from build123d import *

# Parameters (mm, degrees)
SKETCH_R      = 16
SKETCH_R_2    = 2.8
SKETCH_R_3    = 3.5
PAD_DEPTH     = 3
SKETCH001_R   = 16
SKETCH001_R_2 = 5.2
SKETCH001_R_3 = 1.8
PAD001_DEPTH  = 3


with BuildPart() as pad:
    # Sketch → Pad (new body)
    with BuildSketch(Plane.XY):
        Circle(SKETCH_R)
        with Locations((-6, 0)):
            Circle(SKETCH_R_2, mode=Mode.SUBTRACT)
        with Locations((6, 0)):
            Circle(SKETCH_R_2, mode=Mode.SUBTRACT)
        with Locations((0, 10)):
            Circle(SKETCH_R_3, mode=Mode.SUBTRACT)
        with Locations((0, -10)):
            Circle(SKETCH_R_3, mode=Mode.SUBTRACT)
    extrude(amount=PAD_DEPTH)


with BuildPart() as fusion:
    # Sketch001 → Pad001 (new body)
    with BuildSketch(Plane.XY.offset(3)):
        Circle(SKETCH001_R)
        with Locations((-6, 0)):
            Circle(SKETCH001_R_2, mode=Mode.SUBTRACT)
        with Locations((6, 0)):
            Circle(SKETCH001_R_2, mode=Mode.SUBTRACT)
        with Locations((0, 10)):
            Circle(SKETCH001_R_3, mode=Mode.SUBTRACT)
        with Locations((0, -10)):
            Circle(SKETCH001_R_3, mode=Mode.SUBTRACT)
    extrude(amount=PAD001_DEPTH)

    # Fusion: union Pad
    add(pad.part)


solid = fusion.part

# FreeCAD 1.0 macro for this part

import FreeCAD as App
import Part
import Sketcher

V = App.Vector

doc = App.newDocument("Part")
body = doc.addObject("PartDesign::Body", "Body")

sketch1 = body.newObject("Sketcher::SketchObject", "Sketch")
sketch1.AttachmentSupport = (doc.getObject("XY_Plane"), [""])
sketch1.MapMode = "FlatFace"
sketch1.addGeometry([
    Part.Circle(V(0, 0, 0), V(0, 0, 1), 16),
    Part.Circle(V(0, -10, 0), V(0, 0, 1), 3.5),
    Part.Circle(V(-6, 0, 0), V(0, 0, 1), 2.8),
    Part.Circle(V(6, 0, 0), V(0, 0, 1), 2.8),
    Part.Circle(V(0, 10, 0), V(0, 0, 1), 3.5),
], False)
sketch1.addConstraint([
    Sketcher.Constraint("Coincident", 0, 3, -1, 1),
    Sketcher.Constraint("Equal", 2, 3),
    Sketcher.Constraint("Equal", 1, 4),
    Sketcher.Constraint("Symmetric", 2, 3, 3, 3, -1, 1),
    Sketcher.Constraint("Symmetric", 1, 3, 4, 3, -1, 1),
    Sketcher.Constraint("PointOnObject", 1, 3, -2),
    Sketcher.Constraint("PointOnObject", 2, 3, -1),
    Sketcher.Constraint("Diameter", 0, 32.0),
    Sketcher.Constraint("Diameter", 1, 7.0),
    Sketcher.Constraint("Diameter", 2, 5.6),
    Sketcher.Constraint("DistanceY", 1, 3, -1, 1, 10.0),
    Sketcher.Constraint("DistanceX", 2, 3, -1, 1, 6.0),
])
pad1 = body.newObject("PartDesign::Pad", "Pad")
pad1.Profile = sketch1
pad1.Length = 3
body2 = doc.addObject("PartDesign::Body", "Body001")

sketch2 = body2.newObject("Sketcher::SketchObject", "Sketch001")
sketch2.AttachmentSupport = (doc.getObject("XY_Plane001"), [""])
sketch2.MapMode = "FlatFace"
sketch2.AttachmentOffset = App.Placement(V(0, 0, 3), App.Rotation())
sketch2.addGeometry([
    Part.Circle(V(0, 0, 0), V(0, 0, 1), 16),
    Part.Circle(V(0, -10, 0), V(0, 0, 1), 1.8),
    Part.Circle(V(-6, 0, 0), V(0, 0, 1), 5.2),
    Part.Circle(V(6, 0, 0), V(0, 0, 1), 5.2),
    Part.Circle(V(0, 10, 0), V(0, 0, 1), 1.8),
], False)
sketch2.addConstraint([
    Sketcher.Constraint("Coincident", 0, 3, -1, 1),
    Sketcher.Constraint("Equal", 2, 3),
    Sketcher.Constraint("Equal", 1, 4),
    Sketcher.Constraint("Symmetric", 2, 3, 3, 3, -1, 1),
    Sketcher.Constraint("Symmetric", 1, 3, 4, 3, -1, 1),
    Sketcher.Constraint("PointOnObject", 1, 3, -2),
    Sketcher.Constraint("PointOnObject", 2, 3, -1),
    Sketcher.Constraint("Diameter", 0, 32.0),
    Sketcher.Constraint("Diameter", 1, 3.6),
    Sketcher.Constraint("Diameter", 2, 10.4),
    Sketcher.Constraint("DistanceY", 1, 3, -1, 1, 10.0),
    Sketcher.Constraint("DistanceX", 2, 3, -1, 1, 6.0),
])
pad2 = body2.newObject("PartDesign::Pad", "Pad001")
pad2.Profile = sketch2
pad2.Length = 3
doc.recompute()

boolean = body2.newObject("PartDesign::Boolean", "Boolean")
boolean.Type = "Fuse"
boolean.addObjects([body])

doc.recompute()
